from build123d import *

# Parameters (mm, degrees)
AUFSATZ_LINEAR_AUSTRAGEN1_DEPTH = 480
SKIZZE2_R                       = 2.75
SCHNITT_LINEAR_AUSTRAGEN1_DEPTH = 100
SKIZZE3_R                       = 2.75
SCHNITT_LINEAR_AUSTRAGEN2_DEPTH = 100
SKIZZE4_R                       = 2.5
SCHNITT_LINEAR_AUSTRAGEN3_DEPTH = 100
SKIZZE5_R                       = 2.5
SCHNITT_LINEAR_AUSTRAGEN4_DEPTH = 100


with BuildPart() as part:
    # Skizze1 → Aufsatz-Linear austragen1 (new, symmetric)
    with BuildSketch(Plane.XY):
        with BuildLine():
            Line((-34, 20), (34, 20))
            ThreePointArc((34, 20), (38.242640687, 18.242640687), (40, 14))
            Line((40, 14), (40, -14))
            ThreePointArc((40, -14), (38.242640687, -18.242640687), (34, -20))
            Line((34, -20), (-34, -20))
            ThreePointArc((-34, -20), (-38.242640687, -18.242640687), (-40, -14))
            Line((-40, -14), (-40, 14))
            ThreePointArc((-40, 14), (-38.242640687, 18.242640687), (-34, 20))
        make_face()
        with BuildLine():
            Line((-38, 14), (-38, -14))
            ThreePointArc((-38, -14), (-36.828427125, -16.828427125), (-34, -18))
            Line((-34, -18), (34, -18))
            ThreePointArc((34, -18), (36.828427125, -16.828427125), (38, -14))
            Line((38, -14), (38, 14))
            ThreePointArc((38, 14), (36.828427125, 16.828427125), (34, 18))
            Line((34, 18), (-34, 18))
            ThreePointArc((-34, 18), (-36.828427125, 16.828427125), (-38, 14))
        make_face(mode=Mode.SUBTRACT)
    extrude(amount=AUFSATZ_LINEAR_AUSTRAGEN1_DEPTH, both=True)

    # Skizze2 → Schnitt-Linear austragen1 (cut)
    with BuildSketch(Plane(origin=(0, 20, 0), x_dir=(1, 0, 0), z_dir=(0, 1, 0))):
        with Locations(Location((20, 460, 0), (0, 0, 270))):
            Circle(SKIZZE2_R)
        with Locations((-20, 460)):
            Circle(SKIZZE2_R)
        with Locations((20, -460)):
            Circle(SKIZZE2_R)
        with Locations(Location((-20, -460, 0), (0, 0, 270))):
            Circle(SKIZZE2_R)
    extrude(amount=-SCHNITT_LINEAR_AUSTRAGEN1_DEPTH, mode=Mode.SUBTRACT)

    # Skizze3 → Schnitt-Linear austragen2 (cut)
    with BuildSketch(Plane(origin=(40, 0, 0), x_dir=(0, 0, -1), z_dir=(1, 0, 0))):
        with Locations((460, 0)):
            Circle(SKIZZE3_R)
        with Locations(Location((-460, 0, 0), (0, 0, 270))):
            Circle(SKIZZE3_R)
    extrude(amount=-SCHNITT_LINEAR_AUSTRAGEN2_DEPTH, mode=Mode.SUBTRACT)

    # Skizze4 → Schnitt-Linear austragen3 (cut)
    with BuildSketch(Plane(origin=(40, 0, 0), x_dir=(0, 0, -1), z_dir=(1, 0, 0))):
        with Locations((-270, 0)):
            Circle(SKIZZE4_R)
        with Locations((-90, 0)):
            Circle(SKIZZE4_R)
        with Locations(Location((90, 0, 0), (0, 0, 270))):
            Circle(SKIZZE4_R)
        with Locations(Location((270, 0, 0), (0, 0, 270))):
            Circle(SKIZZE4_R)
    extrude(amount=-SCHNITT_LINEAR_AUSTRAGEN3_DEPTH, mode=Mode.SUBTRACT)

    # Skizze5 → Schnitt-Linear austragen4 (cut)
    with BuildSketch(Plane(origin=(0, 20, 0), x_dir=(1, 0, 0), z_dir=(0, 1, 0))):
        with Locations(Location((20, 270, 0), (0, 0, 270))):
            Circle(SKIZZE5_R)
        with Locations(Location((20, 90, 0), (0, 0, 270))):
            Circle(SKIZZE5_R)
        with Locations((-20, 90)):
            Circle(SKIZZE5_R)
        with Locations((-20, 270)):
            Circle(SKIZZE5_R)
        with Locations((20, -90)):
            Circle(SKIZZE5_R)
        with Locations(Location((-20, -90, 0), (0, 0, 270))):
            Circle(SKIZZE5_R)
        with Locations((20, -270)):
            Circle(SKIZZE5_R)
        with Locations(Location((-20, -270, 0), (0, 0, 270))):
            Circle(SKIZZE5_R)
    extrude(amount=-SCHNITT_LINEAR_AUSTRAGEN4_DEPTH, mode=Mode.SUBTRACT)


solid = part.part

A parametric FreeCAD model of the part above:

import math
import FreeCAD as App
import Part
import Sketcher

doc = App.newDocument("Part")
params = doc.addObject("Spreadsheet::Sheet", "Params")
for row, (alias, value) in enumerate([
    ("sketch1_radius", "6 mm"),
    ("sketch1_radius2", "4 mm"),
    ("sketch1_width", "68 mm"),
    ("sketch1_height", "28 mm"),
    ("pad1_length", "960 mm"),
    ("sketch2_diameter", "5.5 mm"),
    ("pocket1_length", "100 mm"),
    ("sketch3_diameter", "5.5 mm"),
    ("pocket2_length", "100 mm"),
    ("sketch4_diameter", "5 mm"),
    ("pocket3_length", "100 mm"),
    ("sketch5_diameter", "5 mm"),
    ("pocket4_length", "100 mm"),
], start=1):
    params.set(f"A{row}", alias)
    params.set(f"B{row}", "=" + value)
    params.setAlias(f"B{row}", alias)

body = doc.addObject("PartDesign::Body", "Body")

# Sketch on XY plane
sketch1 = body.newObject("Sketcher::SketchObject", "Sketch")
sketch1.AttachmentSupport = (doc.getObject("XY_Plane"), [""])
sketch1.MapMode = "FlatFace"
sketch1.addGeometry([
    Part.LineSegment(App.Vector(34, 20, 0), App.Vector(-34, 20, 0)),  # 0
    Part.ArcOfCircle(Part.Circle(App.Vector(-34, 14, 0), App.Vector(0, 0, 1), 6), math.radians(90), math.radians(180)),  # 1
    Part.LineSegment(App.Vector(-40, 14, 0), App.Vector(-40, -14, 0)),  # 2
    Part.ArcOfCircle(Part.Circle(App.Vector(-34, -14, 0), App.Vector(0, 0, 1), 6), math.radians(180), math.radians(270)),  # 3
    Part.LineSegment(App.Vector(-34, -20, 0), App.Vector(34, -20, 0)),  # 4
    Part.ArcOfCircle(Part.Circle(App.Vector(34, -14, 0), App.Vector(0, 0, 1), 6), math.radians(-90), math.radians(0)),  # 5
    Part.LineSegment(App.Vector(40, -14, 0), App.Vector(40, 14, 0)),  # 6
    Part.ArcOfCircle(Part.Circle(App.Vector(34, 14, 0), App.Vector(0, 0, 1), 6), math.radians(0), math.radians(90)),  # 7
    Part.ArcOfCircle(Part.Circle(App.Vector(-34, 14, 0), App.Vector(0, 0, 1), 4), math.radians(90), math.radians(180)),  # 8
    Part.LineSegment(App.Vector(-34, 18, 0), App.Vector(34, 18, 0)),  # 9
    Part.ArcOfCircle(Part.Circle(App.Vector(34, 14, 0), App.Vector(0, 0, 1), 4), math.radians(0), math.radians(90)),  # 10
    Part.LineSegment(App.Vector(38, 14, 0), App.Vector(38, -14, 0)),  # 11
    Part.ArcOfCircle(Part.Circle(App.Vector(34, -14, 0), App.Vector(0, 0, 1), 4), math.radians(-90), math.radians(0)),  # 12
    Part.LineSegment(App.Vector(34, -18, 0), App.Vector(-34, -18, 0)),  # 13
    Part.ArcOfCircle(Part.Circle(App.Vector(-34, -14, 0), App.Vector(0, 0, 1), 4), math.radians(180), math.radians(270)),  # 14
    Part.LineSegment(App.Vector(-38, -14, 0), App.Vector(-38, 14, 0)),  # 15
], False)
sketch1.addConstraint([
    Sketcher.Constraint("Tangent", 0, 2, 1, 1),
    Sketcher.Constraint("Tangent", 1, 2, 2, 1),
    Sketcher.Constraint("Tangent", 2, 2, 3, 1),
    Sketcher.Constraint("Tangent", 3, 2, 4, 1),
    Sketcher.Constraint("Tangent", 4, 2, 5, 1),
    Sketcher.Constraint("Tangent", 5, 2, 6, 1),
    Sketcher.Constraint("Tangent", 6, 2, 7, 1),
    Sketcher.Constraint("Tangent", 7, 2, 0, 1),
    Sketcher.Constraint("Tangent", 8, 1, 9, 1),
    Sketcher.Constraint("Tangent", 9, 2, 10, 2),
    Sketcher.Constraint("Tangent", 10, 1, 11, 1),
    Sketcher.Constraint("Tangent", 11, 2, 12, 2),
    Sketcher.Constraint("Tangent", 12, 1, 13, 1),
    Sketcher.Constraint("Tangent", 13, 2, 14, 2),
    Sketcher.Constraint("Tangent", 14, 1, 15, 1),
    Sketcher.Constraint("Tangent", 15, 2, 8, 2),
    Sketcher.Constraint("Horizontal", 0),
    Sketcher.Constraint("Vertical", 2),
    Sketcher.Constraint("Horizontal", 4),
    Sketcher.Constraint("Vertical", 6),
    Sketcher.Constraint("Horizontal", 9),
    Sketcher.Constraint("Vertical", 11),
    Sketcher.Constraint("Horizontal", 13),
    Sketcher.Constraint("Vertical", 15),
    Sketcher.Constraint("Coincident", 8, 3, 1, 3),
    Sketcher.Constraint("Coincident", 10, 3, 7, 3),
    Sketcher.Constraint("Coincident", 12, 3, 5, 3),
    Sketcher.Constraint("Equal", 1, 3),
    Sketcher.Constraint("Equal", 3, 5),
    Sketcher.Constraint("Equal", 5, 7),
    Sketcher.Constraint("Equal", 12, 14),
    Sketcher.Constraint("Symmetric", 1, 3, 5, 3, -1, 1),
    Sketcher.Constraint("Radius", 1, 6.0),
    Sketcher.Constraint("Radius", 8, 4.0),
    Sketcher.Constraint("DistanceX", 0, 2, 0, 1, 68.0),
    Sketcher.Constraint("DistanceY", 2, 2, 2, 1, 28.0),
])
sketch1.setExpression("Constraints[32]", "Params.sketch1_radius")
sketch1.setExpression("Constraints[33]", "Params.sketch1_radius2")
sketch1.setExpression("Constraints[34]", "Params.sketch1_width")
sketch1.setExpression("Constraints[35]", "Params.sketch1_height")
pad1 = body.newObject("PartDesign::Pad", "Pad")
pad1.Profile = sketch1
pad1.setExpression("Length", "Params.pad1_length")
pad1.Midplane = True

# Sketch on XZ plane
sketch2 = body.newObject("Sketcher::SketchObject", "Sketch001")
sketch2.AttachmentSupport = (doc.getObject("XZ_Plane"), [""])
sketch2.MapMode = "FlatFace"
sketch2.AttachmentOffset = App.Placement(App.Vector(0, 0, -20), App.Rotation())
sketch2.addGeometry([
    Part.Circle(App.Vector(20, -460, 0), App.Vector(0, 0, 1), 2.8),
    Part.Circle(App.Vector(-20, -460, 0), App.Vector(0, 0, 1), 2.8),
    Part.Circle(App.Vector(20, 460, 0), App.Vector(0, 0, 1), 2.8),
    Part.Circle(App.Vector(-20, 460, 0), App.Vector(0, 0, 1), 2.8),
], False)
sketch2.addConstraint([
    Sketcher.Constraint("Equal", 0, 1),
    Sketcher.Constraint("Equal", 1, 2),
    Sketcher.Constraint("Equal", 2, 3),
    Sketcher.Constraint("Symmetric", 1, 3, 2, 3, -1, 1),
    Sketcher.Constraint("Symmetric", 0, 3, 3, 3, -1, 1),
    Sketcher.Constraint("Symmetric", 0, 3, 1, 3, -2),
    Sketcher.Constraint("Diameter", 0, 5.5),
    Sketcher.Constraint("DistanceX", -1, 1, 0, 3, 20.0),
    Sketcher.Constraint("DistanceY", 0, 3, -1, 1, 460.0),
])
sketch2.setExpression("Constraints[6]", "Params.sketch2_diameter")
pocket1 = body.newObject("PartDesign::Pocket", "Pocket")
pocket1.Profile = sketch2
pocket1.setExpression("Length", "Params.pocket1_length")
pocket1.Reversed = True

# Sketch on YZ plane
sketch3 = body.newObject("Sketcher::SketchObject", "Sketch002")
sketch3.AttachmentSupport = (doc.getObject("YZ_Plane"), [""])
sketch3.MapMode = "FlatFace"
sketch3.AttachmentOffset = App.Placement(App.Vector(0, 0, 40), App.Rotation())
sketch3.addGeometry([
    Part.Circle(App.Vector(0, -460, 0), App.Vector(0, 0, 1), 2.8),
    Part.Circle(App.Vector(0, 460, 0), App.Vector(0, 0, 1), 2.8),
], False)
sketch3.addConstraint([
    Sketcher.Constraint("Equal", 0, 1),
    Sketcher.Constraint("Symmetric", 0, 3, 1, 3, -1, 1),
    Sketcher.Constraint("PointOnObject", 0, 3, -2),
    Sketcher.Constraint("Diameter", 0, 5.5),
    Sketcher.Constraint("DistanceY", 0, 3, -1, 1, 460.0),
])
sketch3.setExpression("Constraints[3]", "Params.sketch3_diameter")
pocket2 = body.newObject("PartDesign::Pocket", "Pocket001")
pocket2.Profile = sketch3
pocket2.setExpression("Length", "Params.pocket2_length")

# Sketch on YZ plane
sketch4 = body.newObject("Sketcher::SketchObject", "Sketch003")
sketch4.AttachmentSupport = (doc.getObject("YZ_Plane"), [""])
sketch4.MapMode = "FlatFace"
sketch4.AttachmentOffset = App.Placement(App.Vector(0, 0, 40), App.Rotation())
sketch4.addGeometry([
    Part.Circle(App.Vector(0, 270, 0), App.Vector(0, 0, 1), 2.5),
    Part.Circle(App.Vector(0, 90, 0), App.Vector(0, 0, 1), 2.5),
    Part.Circle(App.Vector(0, -90, 0), App.Vector(0, 0, 1), 2.5),
    Part.Circle(App.Vector(0, -270, 0), App.Vector(0, 0, 1), 2.5),
], False)
sketch4.addConstraint([
    Sketcher.Constraint("Equal", 0, 1),
    Sketcher.Constraint("Equal", 1, 2),
    Sketcher.Constraint("Equal", 2, 3),
    Sketcher.Constraint("Symmetric", 1, 3, 2, 3, -1, 1),
    Sketcher.Constraint("Symmetric", 0, 3, 3, 3, -1, 1),
    Sketcher.Constraint("PointOnObject", 0, 3, -2),
    Sketcher.Constraint("PointOnObject", 1, 3, -2),
    Sketcher.Constraint("Diameter", 0, 5.0),
    Sketcher.Constraint("DistanceY", -1, 1, 0, 3, 270.0),
    Sketcher.Constraint("DistanceY", -1, 1, 1, 3, 90.0),
])
sketch4.setExpression("Constraints[7]", "Params.sketch4_diameter")
pocket3 = body.newObject("PartDesign::Pocket", "Pocket002")
pocket3.Profile = sketch4
pocket3.setExpression("Length", "Params.pocket3_length")

# Sketch on XZ plane
sketch5 = body.newObject("Sketcher::SketchObject", "Sketch004")
sketch5.AttachmentSupport = (doc.getObject("XZ_Plane"), [""])
sketch5.MapMode = "FlatFace"
sketch5.AttachmentOffset = App.Placement(App.Vector(0, 0, -20), App.Rotation())
sketch5.addGeometry([
    Part.Circle(App.Vector(20, -270, 0), App.Vector(0, 0, 1), 2.5),  # 0
    Part.Circle(App.Vector(20, -90, 0), App.Vector(0, 0, 1), 2.5),  # 1
    Part.Circle(App.Vector(-20, -90, 0), App.Vector(0, 0, 1), 2.5),  # 2
    Part.Circle(App.Vector(-20, -270, 0), App.Vector(0, 0, 1), 2.5),  # 3
    Part.Circle(App.Vector(20, 90, 0), App.Vector(0, 0, 1), 2.5),  # 4
    Part.Circle(App.Vector(-20, 90, 0), App.Vector(0, 0, 1), 2.5),  # 5
    Part.Circle(App.Vector(20, 270, 0), App.Vector(0, 0, 1), 2.5),  # 6
    Part.Circle(App.Vector(-20, 270, 0), App.Vector(0, 0, 1), 2.5),  # 7
], False)
sketch5.addConstraint([
    Sketcher.Constraint("Equal", 0, 1),
    Sketcher.Constraint("Equal", 1, 2),
    Sketcher.Constraint("Equal", 2, 3),
    Sketcher.Constraint("Equal", 3, 4),
    Sketcher.Constraint("Equal", 4, 5),
    Sketcher.Constraint("Equal", 5, 6),
    Sketcher.Constraint("Equal", 6, 7),
    Sketcher.Constraint("Symmetric", 2, 3, 4, 3, -1, 1),
    Sketcher.Constraint("Symmetric", 1, 3, 5, 3, -1, 1),
    Sketcher.Constraint("Symmetric", 3, 3, 6, 3, -1, 1),
    Sketcher.Constraint("Symmetric", 0, 3, 7, 3, -1, 1),
    Sketcher.Constraint("Symmetric", 1, 3, 2, 3, -2),
    Sketcher.Constraint("Symmetric", 0, 3, 3, 3, -2),
    Sketcher.Constraint("Vertical", 0, 3, 1, 3),
    Sketcher.Constraint("Diameter", 0, 5.0),
    Sketcher.Constraint("DistanceX", -1, 1, 0, 3, 20.0),
    Sketcher.Constraint("DistanceY", 0, 3, -1, 1, 270.0),
    Sketcher.Constraint("DistanceY", 1, 3, -1, 1, 90.0),
])
sketch5.setExpression("Constraints[14]", "Params.sketch5_diameter")
pocket4 = body.newObject("PartDesign::Pocket", "Pocket003")
pocket4.Profile = sketch5
pocket4.setExpression("Length", "Params.pocket4_length")
pocket4.Reversed = True

doc.recompute()
